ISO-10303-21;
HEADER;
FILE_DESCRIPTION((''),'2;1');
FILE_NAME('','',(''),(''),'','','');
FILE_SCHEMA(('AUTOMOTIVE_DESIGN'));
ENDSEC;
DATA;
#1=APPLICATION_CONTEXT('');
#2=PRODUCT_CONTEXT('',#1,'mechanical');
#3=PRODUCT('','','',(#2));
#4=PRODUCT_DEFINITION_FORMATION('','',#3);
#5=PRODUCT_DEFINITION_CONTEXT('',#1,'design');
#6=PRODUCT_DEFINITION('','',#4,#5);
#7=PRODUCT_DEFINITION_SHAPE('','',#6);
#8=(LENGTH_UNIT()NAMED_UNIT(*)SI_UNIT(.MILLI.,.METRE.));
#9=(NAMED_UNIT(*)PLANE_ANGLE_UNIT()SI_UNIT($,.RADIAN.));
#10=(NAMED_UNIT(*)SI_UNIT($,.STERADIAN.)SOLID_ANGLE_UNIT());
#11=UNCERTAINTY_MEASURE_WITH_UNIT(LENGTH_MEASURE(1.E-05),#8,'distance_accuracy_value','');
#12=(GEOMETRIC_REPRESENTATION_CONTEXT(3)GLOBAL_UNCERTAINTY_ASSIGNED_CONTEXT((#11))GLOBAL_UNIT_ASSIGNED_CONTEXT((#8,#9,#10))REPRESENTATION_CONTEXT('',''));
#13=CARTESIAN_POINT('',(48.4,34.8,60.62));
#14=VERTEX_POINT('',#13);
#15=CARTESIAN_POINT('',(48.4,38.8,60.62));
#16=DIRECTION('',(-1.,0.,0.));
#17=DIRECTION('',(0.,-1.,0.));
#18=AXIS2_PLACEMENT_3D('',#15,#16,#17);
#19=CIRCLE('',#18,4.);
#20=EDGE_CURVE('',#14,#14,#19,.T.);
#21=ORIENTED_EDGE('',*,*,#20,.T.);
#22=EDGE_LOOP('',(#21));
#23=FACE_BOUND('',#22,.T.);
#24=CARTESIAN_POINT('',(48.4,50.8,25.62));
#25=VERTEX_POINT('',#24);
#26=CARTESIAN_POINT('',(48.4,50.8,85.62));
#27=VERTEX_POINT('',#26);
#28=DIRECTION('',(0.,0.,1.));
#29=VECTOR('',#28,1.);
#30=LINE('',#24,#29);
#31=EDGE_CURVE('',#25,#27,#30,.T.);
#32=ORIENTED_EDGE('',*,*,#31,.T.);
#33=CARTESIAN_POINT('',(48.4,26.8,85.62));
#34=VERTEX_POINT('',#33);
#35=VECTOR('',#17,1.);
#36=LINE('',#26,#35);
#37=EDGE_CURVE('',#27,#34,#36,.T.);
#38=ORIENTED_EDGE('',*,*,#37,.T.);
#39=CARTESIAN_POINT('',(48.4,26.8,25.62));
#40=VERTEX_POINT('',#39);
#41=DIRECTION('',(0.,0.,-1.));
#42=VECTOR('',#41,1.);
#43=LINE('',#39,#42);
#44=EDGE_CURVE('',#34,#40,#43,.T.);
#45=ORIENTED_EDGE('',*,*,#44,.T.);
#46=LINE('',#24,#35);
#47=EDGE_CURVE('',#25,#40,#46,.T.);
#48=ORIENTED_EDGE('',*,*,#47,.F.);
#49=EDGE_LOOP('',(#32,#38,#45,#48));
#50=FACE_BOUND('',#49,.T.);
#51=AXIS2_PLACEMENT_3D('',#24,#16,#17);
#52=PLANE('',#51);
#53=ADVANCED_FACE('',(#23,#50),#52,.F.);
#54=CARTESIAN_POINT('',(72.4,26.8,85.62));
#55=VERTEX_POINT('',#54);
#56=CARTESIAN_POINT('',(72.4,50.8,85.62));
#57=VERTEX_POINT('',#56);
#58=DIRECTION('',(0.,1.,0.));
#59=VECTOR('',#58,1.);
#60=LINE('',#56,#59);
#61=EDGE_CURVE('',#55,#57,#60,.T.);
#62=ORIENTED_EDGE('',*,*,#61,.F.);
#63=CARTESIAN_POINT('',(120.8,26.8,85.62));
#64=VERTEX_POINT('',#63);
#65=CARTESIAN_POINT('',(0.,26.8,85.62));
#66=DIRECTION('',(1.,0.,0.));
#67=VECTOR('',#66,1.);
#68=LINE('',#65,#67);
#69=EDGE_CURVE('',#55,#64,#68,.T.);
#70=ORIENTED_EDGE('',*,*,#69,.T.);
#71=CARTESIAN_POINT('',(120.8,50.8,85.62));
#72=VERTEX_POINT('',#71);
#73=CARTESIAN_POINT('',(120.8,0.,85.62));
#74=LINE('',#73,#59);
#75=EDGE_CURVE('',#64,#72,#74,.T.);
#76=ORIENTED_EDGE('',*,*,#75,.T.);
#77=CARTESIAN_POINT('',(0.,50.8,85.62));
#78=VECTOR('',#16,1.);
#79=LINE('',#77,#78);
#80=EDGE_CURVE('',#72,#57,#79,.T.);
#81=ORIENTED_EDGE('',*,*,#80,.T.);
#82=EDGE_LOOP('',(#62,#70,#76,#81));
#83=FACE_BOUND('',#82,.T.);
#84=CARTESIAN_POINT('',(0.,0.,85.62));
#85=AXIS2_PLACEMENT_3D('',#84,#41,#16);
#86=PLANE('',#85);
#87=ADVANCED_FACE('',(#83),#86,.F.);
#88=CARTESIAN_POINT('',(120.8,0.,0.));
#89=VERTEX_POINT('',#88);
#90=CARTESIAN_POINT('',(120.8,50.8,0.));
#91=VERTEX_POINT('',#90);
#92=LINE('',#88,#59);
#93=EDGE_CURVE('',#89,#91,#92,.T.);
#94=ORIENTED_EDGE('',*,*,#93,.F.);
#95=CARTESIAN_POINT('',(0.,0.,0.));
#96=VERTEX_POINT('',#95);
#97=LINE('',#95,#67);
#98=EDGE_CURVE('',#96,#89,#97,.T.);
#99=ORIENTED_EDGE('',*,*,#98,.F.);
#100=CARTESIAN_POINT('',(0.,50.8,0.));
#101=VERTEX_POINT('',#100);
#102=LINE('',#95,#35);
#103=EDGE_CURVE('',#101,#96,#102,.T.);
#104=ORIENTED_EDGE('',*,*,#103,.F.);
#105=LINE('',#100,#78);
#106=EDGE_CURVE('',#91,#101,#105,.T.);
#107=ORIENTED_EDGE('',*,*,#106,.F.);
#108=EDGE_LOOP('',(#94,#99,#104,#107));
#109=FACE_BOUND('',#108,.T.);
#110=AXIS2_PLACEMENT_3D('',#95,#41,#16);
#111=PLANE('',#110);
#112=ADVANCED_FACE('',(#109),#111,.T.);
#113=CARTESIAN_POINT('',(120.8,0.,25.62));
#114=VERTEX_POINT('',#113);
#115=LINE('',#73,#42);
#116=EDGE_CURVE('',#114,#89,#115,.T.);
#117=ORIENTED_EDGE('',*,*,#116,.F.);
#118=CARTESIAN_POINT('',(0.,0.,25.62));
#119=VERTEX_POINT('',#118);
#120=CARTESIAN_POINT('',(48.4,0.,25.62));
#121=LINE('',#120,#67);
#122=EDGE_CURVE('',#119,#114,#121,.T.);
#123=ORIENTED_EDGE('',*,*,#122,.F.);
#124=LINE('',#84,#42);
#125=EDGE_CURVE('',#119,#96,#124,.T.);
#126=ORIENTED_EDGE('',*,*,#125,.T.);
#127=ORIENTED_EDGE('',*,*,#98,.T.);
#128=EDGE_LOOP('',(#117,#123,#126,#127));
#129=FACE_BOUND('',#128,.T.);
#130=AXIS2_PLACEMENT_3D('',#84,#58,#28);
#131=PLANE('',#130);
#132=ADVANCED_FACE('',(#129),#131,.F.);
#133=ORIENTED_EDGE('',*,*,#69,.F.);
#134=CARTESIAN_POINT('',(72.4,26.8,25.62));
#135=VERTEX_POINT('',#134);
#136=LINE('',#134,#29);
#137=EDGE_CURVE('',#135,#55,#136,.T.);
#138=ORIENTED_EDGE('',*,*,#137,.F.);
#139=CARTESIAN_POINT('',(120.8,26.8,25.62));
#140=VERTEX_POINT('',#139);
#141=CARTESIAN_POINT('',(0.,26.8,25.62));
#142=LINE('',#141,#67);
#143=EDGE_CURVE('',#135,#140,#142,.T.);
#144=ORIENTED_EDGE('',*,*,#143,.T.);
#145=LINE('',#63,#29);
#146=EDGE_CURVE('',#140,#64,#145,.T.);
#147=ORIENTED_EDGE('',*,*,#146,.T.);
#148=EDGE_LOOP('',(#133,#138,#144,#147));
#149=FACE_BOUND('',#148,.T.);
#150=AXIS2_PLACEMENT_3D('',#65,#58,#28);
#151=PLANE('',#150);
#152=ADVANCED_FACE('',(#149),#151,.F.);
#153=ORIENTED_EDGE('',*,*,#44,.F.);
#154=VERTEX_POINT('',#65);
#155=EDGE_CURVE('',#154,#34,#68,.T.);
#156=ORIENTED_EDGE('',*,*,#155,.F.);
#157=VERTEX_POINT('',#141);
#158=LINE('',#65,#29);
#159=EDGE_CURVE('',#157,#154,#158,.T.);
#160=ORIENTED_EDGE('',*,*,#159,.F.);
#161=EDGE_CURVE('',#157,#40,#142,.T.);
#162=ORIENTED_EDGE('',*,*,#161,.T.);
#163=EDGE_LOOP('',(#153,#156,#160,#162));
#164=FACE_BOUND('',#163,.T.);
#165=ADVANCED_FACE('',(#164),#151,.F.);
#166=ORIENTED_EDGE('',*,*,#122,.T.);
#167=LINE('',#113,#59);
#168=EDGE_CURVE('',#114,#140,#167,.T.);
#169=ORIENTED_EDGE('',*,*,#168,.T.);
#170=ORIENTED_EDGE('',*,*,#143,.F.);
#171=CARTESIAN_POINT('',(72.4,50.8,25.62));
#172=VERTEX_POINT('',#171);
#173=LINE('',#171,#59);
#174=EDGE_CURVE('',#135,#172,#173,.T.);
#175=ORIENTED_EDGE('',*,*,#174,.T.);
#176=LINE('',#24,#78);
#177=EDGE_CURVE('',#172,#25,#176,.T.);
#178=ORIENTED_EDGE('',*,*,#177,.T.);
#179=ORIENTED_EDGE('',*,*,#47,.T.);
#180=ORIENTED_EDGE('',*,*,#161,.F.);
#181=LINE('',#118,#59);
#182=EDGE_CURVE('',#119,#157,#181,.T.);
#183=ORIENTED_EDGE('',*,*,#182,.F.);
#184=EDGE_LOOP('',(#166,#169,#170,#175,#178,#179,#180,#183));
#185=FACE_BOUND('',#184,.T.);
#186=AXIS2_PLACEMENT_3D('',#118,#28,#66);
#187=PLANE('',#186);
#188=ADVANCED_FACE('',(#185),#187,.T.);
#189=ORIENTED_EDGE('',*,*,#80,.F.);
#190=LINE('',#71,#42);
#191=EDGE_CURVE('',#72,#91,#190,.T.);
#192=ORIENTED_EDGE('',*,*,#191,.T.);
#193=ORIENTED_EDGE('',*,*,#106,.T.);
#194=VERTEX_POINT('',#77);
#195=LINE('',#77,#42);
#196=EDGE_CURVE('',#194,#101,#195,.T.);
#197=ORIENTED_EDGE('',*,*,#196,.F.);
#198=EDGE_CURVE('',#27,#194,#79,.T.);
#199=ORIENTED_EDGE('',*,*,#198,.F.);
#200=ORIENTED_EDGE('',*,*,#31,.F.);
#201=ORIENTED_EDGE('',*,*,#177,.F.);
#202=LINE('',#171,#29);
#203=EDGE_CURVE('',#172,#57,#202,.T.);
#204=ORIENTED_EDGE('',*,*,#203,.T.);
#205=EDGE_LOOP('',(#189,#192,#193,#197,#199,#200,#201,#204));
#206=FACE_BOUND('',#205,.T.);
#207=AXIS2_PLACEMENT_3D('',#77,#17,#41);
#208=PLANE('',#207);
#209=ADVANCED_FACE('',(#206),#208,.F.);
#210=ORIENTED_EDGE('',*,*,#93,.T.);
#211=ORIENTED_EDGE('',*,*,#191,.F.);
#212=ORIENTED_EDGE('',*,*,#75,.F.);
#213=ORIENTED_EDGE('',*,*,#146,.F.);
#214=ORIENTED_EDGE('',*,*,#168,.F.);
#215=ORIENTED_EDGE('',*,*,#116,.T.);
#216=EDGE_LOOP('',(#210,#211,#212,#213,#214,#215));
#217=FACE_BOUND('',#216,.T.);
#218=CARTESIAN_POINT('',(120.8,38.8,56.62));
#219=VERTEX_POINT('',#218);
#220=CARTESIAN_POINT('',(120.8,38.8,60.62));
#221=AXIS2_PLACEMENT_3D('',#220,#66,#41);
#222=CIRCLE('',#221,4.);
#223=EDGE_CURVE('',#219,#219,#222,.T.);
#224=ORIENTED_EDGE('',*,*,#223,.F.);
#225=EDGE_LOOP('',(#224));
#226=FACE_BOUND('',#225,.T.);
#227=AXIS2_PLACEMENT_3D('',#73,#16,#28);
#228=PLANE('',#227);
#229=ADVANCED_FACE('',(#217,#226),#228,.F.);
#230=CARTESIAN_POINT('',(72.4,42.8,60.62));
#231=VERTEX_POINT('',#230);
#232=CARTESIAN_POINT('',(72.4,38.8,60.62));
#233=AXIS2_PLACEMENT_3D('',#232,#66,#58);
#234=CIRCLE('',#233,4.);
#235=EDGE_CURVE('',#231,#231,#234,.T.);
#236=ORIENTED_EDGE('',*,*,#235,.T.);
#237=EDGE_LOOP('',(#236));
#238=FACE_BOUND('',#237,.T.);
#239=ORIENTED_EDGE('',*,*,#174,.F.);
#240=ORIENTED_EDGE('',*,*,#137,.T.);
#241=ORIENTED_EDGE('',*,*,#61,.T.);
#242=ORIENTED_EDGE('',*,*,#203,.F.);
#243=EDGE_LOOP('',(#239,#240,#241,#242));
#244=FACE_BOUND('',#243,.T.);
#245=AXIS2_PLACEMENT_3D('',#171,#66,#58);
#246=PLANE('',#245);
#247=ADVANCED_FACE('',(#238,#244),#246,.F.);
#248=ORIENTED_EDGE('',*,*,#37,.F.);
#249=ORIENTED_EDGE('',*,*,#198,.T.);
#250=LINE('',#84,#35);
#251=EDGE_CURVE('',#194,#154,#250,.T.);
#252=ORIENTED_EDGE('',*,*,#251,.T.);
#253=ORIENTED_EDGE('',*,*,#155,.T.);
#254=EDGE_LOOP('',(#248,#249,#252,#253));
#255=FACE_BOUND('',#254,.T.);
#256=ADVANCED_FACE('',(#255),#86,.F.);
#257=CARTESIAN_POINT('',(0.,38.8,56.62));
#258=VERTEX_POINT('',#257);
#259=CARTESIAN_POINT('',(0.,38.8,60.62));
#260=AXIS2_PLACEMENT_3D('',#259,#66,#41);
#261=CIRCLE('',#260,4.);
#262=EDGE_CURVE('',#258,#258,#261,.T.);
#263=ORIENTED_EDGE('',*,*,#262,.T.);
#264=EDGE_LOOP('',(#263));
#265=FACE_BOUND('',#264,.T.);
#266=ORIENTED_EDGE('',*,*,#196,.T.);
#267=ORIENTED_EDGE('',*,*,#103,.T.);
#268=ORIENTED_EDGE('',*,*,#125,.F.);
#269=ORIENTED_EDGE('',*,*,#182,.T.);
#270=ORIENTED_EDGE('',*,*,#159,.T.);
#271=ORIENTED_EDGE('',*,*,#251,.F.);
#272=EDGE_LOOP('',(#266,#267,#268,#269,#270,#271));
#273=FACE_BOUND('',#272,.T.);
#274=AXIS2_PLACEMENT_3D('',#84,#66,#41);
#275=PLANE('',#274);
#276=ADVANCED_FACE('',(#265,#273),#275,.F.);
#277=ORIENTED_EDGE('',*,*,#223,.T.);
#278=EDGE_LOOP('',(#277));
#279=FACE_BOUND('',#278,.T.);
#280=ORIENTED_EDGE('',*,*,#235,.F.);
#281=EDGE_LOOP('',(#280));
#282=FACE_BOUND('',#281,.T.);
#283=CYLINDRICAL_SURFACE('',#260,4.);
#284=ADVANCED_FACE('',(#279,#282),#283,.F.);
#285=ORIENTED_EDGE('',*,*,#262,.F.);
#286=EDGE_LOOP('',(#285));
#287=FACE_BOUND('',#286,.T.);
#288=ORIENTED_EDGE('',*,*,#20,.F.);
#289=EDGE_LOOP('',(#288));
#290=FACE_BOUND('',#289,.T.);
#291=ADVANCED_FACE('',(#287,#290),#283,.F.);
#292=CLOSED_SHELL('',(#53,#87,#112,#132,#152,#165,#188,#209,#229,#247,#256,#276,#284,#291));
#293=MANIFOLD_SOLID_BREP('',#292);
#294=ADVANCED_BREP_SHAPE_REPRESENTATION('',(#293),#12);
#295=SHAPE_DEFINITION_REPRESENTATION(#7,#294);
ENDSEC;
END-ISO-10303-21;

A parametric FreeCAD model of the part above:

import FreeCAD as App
import Part
import Sketcher

V = App.Vector

doc = App.newDocument("Part")
body = doc.addObject("PartDesign::Body", "Body")

# Sketch on XY plane
sketch1 = doc.addObject("Sketcher::SketchObject", "Sketch")
body.addObject(sketch1)
sketch1.AttachmentSupport = (doc.XY_Plane, [""])
sketch1.MapMode = "FlatFace"
sketch1.addGeometry([
    Part.LineSegment(V(0, 51, 0), V(0, 0, 0)),
    Part.LineSegment(V(0, 0, 0), V(121, 0, 0)),
    Part.LineSegment(V(121, 0, 0), V(121, 51, 0)),
    Part.LineSegment(V(121, 51, 0), V(0, 51, 0)),
], False)
sketch1.addConstraint([
    Sketcher.Constraint("Coincident", 0, 2, 1, 1),
    Sketcher.Constraint("Coincident", 1, 2, 2, 1),
    Sketcher.Constraint("Coincident", 2, 2, 3, 1),
    Sketcher.Constraint("Coincident", 3, 2, 0, 1),
    Sketcher.Constraint("Vertical", 0),
    Sketcher.Constraint("Horizontal", 1),
    Sketcher.Constraint("Vertical", 2),
    Sketcher.Constraint("Horizontal", 3),
    Sketcher.Constraint("Coincident", 0, 2, -1, 1),
    Sketcher.Constraint("DistanceX", 1, 1, 1, 2, 120.8),
    Sketcher.Constraint("DistanceY", 0, 2, 0, 1, 50.8),
])
pad1 = doc.addObject("PartDesign::Pad", "Pad")
body.addObject(pad1)
pad1.Profile = sketch1
pad1.Length = 85.62

# Sketch on XY plane
sketch2 = doc.addObject("Sketcher::SketchObject", "Sketch001")
body.addObject(sketch2)
sketch2.AttachmentSupport = (doc.XY_Plane, [""])
sketch2.MapMode = "FlatFace"
sketch2.AttachmentOffset = App.Placement(V(0, 0, 85.62), App.Rotation())
sketch2.addGeometry([
    Part.LineSegment(V(48, 51, 0), V(48, 0, 0)),
    Part.LineSegment(V(48, 0, 0), V(72, 0, 0)),
    Part.LineSegment(V(72, 0, 0), V(72, 51, 0)),
    Part.LineSegment(V(72, 51, 0), V(48, 51, 0)),
], False)
sketch2.addConstraint([
    Sketcher.Constraint("Coincident", 0, 2, 1, 1),
    Sketcher.Constraint("Coincident", 1, 2, 2, 1),
    Sketcher.Constraint("Coincident", 2, 2, 3, 1),
    Sketcher.Constraint("Coincident", 3, 2, 0, 1),
    Sketcher.Constraint("Vertical", 0),
    Sketcher.Constraint("Horizontal", 1),
    Sketcher.Constraint("Vertical", 2),
    Sketcher.Constraint("Horizontal", 3),
    Sketcher.Constraint("PointOnObject", 0, 2, -1),
    Sketcher.Constraint("DistanceX", 1, 1, 1, 2, 24.0),
    Sketcher.Constraint("DistanceY", 0, 2, 0, 1, 50.8),
    Sketcher.Constraint("DistanceX", -1, 1, 0, 2, 48.4),
])
pocket1 = doc.addObject("PartDesign::Pocket", "Pocket")
body.addObject(pocket1)
pocket1.Profile = sketch2
pocket1.Length = 60

# Sketch on YZ plane
sketch3 = doc.addObject("Sketcher::SketchObject", "Sketch002")
body.addObject(sketch3)
sketch3.AttachmentSupport = (doc.YZ_Plane, [""])
sketch3.MapMode = "FlatFace"
sketch3.AttachmentOffset = App.Placement(V(0, 0, 120.8), App.Rotation())
sketch3.addGeometry(Part.Circle(V(38.8, 60.6, 0), V(0, 0, 1), 4), False)
sketch3.addConstraint([
    Sketcher.Constraint("Diameter", 0, 8.0),
    Sketcher.Constraint("DistanceX", -1, 1, 0, 3, 38.8),
    Sketcher.Constraint("DistanceY", -1, 1, 0, 3, 60.62),
])
pocket2 = doc.addObject("PartDesign::Pocket", "Pocket001")
body.addObject(pocket2)
pocket2.Profile = sketch3
pocket2.Type = "ThroughAll"

# Sketch on YZ plane
sketch4 = doc.addObject("Sketcher::SketchObject", "Sketch003")
body.addObject(sketch4)
sketch4.AttachmentSupport = (doc.YZ_Plane, [""])
sketch4.MapMode = "FlatFace"
sketch4.AttachmentOffset = App.Placement(V(0, 0, 120.8), App.Rotation())
sketch4.addGeometry([
    Part.LineSegment(V(0, 86, 0), V(0, 26, 0)),
    Part.LineSegment(V(0, 26, 0), V(27, 26, 0)),
    Part.LineSegment(V(27, 26, 0), V(27, 86, 0)),
    Part.LineSegment(V(27, 86, 0), V(0, 86, 0)),
], False)
sketch4.addConstraint([
    Sketcher.Constraint("Coincident", 0, 2, 1, 1),
    Sketcher.Constraint("Coincident", 1, 2, 2, 1),
    Sketcher.Constraint("Coincident", 2, 2, 3, 1),
    Sketcher.Constraint("Coincident", 3, 2, 0, 1),
    Sketcher.Constraint("Vertical", 0),
    Sketcher.Constraint("Horizontal", 1),
    Sketcher.Constraint("Vertical", 2),
    Sketcher.Constraint("Horizontal", 3),
    Sketcher.Constraint("PointOnObject", 0, 2, -2),
    Sketcher.Constraint("DistanceY", 0, 2, 0, 1, 60.0),
    Sketcher.Constraint("DistanceX", 1, 1, 1, 2, 26.8),
    Sketcher.Constraint("DistanceY", -1, 1, 0, 2, 25.62),
])
pocket3 = doc.addObject("PartDesign::Pocket", "Pocket002")
body.addObject(pocket3)
pocket3.Profile = sketch4
pocket3.Type = "ThroughAll"

doc.recompute()
